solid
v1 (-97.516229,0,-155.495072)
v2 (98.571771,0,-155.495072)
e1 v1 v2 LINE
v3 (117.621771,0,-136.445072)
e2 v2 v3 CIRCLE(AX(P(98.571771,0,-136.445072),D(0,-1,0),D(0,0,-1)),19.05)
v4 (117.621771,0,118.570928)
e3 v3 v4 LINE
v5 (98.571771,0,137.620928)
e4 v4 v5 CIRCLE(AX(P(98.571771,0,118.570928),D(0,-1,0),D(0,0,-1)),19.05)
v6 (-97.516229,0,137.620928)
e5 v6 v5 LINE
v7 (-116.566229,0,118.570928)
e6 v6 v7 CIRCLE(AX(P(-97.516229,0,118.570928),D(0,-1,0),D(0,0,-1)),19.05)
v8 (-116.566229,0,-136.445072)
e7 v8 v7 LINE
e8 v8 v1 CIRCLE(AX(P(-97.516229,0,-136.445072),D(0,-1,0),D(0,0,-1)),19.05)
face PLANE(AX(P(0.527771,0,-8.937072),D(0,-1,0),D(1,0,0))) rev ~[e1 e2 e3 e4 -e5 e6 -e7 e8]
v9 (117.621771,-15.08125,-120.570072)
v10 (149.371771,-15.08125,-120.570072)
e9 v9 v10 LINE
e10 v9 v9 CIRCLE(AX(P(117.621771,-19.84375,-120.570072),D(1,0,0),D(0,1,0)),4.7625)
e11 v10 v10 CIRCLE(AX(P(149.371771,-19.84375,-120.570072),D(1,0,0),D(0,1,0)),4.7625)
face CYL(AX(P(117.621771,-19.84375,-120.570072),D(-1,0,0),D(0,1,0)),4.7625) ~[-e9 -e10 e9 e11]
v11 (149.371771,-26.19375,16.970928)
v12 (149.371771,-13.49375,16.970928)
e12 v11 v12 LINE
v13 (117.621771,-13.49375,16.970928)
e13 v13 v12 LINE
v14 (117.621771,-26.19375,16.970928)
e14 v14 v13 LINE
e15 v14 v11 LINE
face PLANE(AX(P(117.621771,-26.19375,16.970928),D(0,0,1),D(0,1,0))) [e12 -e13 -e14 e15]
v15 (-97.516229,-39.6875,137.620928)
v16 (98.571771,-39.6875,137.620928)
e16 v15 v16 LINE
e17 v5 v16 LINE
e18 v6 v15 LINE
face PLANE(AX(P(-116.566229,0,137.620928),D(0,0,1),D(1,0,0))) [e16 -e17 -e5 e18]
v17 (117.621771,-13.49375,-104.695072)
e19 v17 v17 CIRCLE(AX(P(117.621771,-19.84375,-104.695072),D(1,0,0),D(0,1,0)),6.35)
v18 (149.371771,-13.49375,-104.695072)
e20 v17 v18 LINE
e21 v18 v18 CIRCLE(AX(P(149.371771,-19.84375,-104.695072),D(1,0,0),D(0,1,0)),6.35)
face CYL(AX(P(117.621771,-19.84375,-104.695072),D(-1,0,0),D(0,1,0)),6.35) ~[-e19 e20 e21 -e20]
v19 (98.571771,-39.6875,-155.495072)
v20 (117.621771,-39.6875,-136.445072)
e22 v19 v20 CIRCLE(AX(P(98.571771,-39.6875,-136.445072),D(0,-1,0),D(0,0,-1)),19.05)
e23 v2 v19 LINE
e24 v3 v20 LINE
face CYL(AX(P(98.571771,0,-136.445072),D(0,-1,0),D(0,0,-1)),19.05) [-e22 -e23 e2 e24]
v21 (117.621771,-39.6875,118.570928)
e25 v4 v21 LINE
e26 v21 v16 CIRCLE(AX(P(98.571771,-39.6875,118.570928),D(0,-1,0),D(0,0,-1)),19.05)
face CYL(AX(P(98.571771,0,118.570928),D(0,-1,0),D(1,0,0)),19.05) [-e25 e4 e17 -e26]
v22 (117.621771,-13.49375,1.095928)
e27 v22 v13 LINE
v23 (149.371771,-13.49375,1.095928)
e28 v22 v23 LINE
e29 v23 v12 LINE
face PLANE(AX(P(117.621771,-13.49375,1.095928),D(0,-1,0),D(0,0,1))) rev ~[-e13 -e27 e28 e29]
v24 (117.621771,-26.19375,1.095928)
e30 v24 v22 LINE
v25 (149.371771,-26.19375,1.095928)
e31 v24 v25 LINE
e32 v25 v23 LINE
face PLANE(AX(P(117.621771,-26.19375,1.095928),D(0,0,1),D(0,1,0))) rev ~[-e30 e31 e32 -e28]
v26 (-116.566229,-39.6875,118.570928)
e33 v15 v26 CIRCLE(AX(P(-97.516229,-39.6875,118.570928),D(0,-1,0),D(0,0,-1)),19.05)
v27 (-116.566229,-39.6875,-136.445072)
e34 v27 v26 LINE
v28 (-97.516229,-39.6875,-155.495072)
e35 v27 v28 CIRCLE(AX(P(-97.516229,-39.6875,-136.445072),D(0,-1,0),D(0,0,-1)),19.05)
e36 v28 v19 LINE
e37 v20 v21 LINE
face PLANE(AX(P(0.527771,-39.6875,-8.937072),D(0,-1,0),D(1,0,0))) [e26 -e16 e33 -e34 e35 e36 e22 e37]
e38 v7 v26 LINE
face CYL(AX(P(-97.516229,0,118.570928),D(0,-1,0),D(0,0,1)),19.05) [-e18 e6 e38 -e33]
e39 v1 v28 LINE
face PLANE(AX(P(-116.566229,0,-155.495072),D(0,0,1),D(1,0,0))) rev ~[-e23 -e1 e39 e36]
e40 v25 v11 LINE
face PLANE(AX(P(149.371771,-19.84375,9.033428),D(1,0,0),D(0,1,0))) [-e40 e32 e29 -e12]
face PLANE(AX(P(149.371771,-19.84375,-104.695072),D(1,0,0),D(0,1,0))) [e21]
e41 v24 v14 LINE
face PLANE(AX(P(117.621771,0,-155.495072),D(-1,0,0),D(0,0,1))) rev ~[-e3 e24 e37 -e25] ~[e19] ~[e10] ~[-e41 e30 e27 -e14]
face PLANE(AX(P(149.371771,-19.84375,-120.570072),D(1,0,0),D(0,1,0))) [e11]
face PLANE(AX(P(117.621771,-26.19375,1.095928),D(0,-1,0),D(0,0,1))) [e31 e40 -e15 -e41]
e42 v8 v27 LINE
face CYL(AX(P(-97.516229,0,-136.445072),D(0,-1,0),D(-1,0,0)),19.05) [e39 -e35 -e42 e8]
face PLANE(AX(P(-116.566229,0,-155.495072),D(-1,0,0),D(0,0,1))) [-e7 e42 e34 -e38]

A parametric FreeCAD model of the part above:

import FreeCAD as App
import Part
import Sketcher

V = App.Vector
Q = App.Units.Quantity


def edges_at(feature, points):
    """Names of the edges that pass closest to the given points."""
    edges = feature.Shape.Edges
    near = lambda p: min(range(len(edges)), key=lambda i: edges[i].distToShape(Part.Vertex(*p))[0])
    return sorted({f"Edge{near(p) + 1}" for p in points})


def add_polygon(sketch, points):
    """Adds a closed chain of lines whose ends are joined by coincident constraints."""
    first, n = sketch.GeometryCount, len(points)
    for a, b in zip(points, points[1:] + points[:1]):
        sketch.addGeometry(Part.LineSegment(App.Vector(*a, 0), App.Vector(*b, 0)), False)
    for i in range(n):
        sketch.addConstraint(Sketcher.Constraint("Coincident", first + i, 2, first + (i + 1) % n, 1))

doc = App.newDocument("Part")
body = doc.addObject("PartDesign::Body", "Body")

sketch1 = doc.addObject("Sketcher::SketchObject", "Sketch")
body.addObject(sketch1)
sketch1.AttachmentSupport = (doc.XZ_Plane, [""])
sketch1.MapMode = "FlatFace"
add_polygon(sketch1, [(-117, 138), (-117, -155), (118, -155), (118, 138)])
sketch1.addConstraint(Sketcher.Constraint("Vertical", 0))
sketch1.addConstraint(Sketcher.Constraint("Horizontal", 1))
sketch1.addConstraint(Sketcher.Constraint("Vertical", 2))
sketch1.addConstraint(Sketcher.Constraint("Horizontal", 3))
sketch1.addConstraint(Sketcher.Constraint("DistanceX", 1, 1, 1, 2, Q("9.22 in")))
sketch1.addConstraint(Sketcher.Constraint("DistanceY", 0, 2, 0, 1, Q("11.54 in")))
sketch1.addConstraint(Sketcher.Constraint("DistanceX", 0, 2, -1, 1, 116.566229))
sketch1.addConstraint(Sketcher.Constraint("DistanceY", 0, 2, -1, 1, 155.495072))
pad1 = doc.addObject("PartDesign::Pad", "Pad")
body.addObject(pad1)
pad1.Profile = sketch1
pad1.Length = Q("1.5625 in")
doc.recompute()

fillet = doc.addObject("PartDesign::Fillet", "Fillet")
body.addObject(fillet)
fillet.Base = (pad1, edges_at(pad1, [(117.622, -19.844, 137.621)]))
fillet.Radius = Q("0.75 in")
doc.recompute()

fillet2 = doc.addObject("PartDesign::Fillet", "Fillet001")
body.addObject(fillet2)
fillet2.Base = (fillet, edges_at(fillet, [(-116.566, -19.844, 137.621)]))
fillet2.Radius = Q("0.75 in")
doc.recompute()

fillet3 = doc.addObject("PartDesign::Fillet", "Fillet002")
body.addObject(fillet3)
fillet3.Base = (fillet2, edges_at(fillet2, [(-116.566, -19.844, -155.495)]))
fillet3.Radius = Q("0.75 in")
doc.recompute()

fillet4 = doc.addObject("PartDesign::Fillet", "Fillet003")
body.addObject(fillet4)
fillet4.Base = (fillet3, edges_at(fillet3, [(117.622, -19.844, -155.495)]))
fillet4.Radius = Q("0.75 in")

sketch2 = doc.addObject("Sketcher::SketchObject", "Sketch001")
body.addObject(sketch2)
sketch2.AttachmentSupport = (doc.YZ_Plane, [""])
sketch2.MapMode = "FlatFace"
sketch2.AttachmentOffset = App.Placement(V(0, 0, 117.621771), App.Rotation())
sketch2.addGeometry(Part.Circle(V(-20, -105, 0), V(0, 0, 1), 6), False)
sketch2.addConstraint(Sketcher.Constraint("Diameter", 0, Q("0.5 in")))
sketch2.addConstraint(Sketcher.Constraint("DistanceX", 0, 3, -1, 1, Q("0.78125 in")))
sketch2.addConstraint(Sketcher.Constraint("DistanceY", 0, 3, -1, 1, 104.695072))
pad2 = doc.addObject("PartDesign::Pad", "Pad001")
body.addObject(pad2)
pad2.Profile = sketch2
pad2.Length = Q("1.25 in")

sketch3 = doc.addObject("Sketcher::SketchObject", "Sketch002")
body.addObject(sketch3)
sketch3.AttachmentSupport = (doc.YZ_Plane, [""])
sketch3.MapMode = "FlatFace"
sketch3.AttachmentOffset = App.Placement(V(0, 0, 117.621771), App.Rotation())
sketch3.addGeometry(Part.Circle(V(-19.8, -120.6, 0), V(0, 0, 1), 4.8), False)
sketch3.addConstraint(Sketcher.Constraint("Diameter", 0, Q("0.375 in")))
sketch3.addConstraint(Sketcher.Constraint("DistanceX", 0, 3, -1, 1, Q("0.78125 in")))
sketch3.addConstraint(Sketcher.Constraint("DistanceY", 0, 3, -1, 1, 120.570072))
pad3 = doc.addObject("PartDesign::Pad", "Pad002")
body.addObject(pad3)
pad3.Profile = sketch3
pad3.Length = Q("1.25 in")

sketch4 = doc.addObject("Sketcher::SketchObject", "Sketch003")
body.addObject(sketch4)
sketch4.AttachmentSupport = (doc.YZ_Plane, [""])
sketch4.MapMode = "FlatFace"
sketch4.AttachmentOffset = App.Placement(V(0, 0, 117.621771), App.Rotation())
add_polygon(sketch4, [(-26, 17), (-26, 1), (-13, 1), (-13, 17)])
sketch4.addConstraint(Sketcher.Constraint("Vertical", 0))
sketch4.addConstraint(Sketcher.Constraint("Horizontal", 1))
sketch4.addConstraint(Sketcher.Constraint("Vertical", 2))
sketch4.addConstraint(Sketcher.Constraint("Horizontal", 3))
sketch4.addConstraint(Sketcher.Constraint("DistanceX", 1, 1, 1, 2, Q("0.5 in")))
sketch4.addConstraint(Sketcher.Constraint("DistanceY", 0, 2, 0, 1, Q("0.625 in")))
sketch4.addConstraint(Sketcher.Constraint("DistanceX", 0, 2, -1, 1, Q("1.03125 in")))
sketch4.addConstraint(Sketcher.Constraint("DistanceY", -1, 1, 2, 2, 16.970928))
pad4 = doc.addObject("PartDesign::Pad", "Pad003")
body.addObject(pad4)
pad4.Profile = sketch4
pad4.Length = Q("1.25 in")

doc.recompute()
